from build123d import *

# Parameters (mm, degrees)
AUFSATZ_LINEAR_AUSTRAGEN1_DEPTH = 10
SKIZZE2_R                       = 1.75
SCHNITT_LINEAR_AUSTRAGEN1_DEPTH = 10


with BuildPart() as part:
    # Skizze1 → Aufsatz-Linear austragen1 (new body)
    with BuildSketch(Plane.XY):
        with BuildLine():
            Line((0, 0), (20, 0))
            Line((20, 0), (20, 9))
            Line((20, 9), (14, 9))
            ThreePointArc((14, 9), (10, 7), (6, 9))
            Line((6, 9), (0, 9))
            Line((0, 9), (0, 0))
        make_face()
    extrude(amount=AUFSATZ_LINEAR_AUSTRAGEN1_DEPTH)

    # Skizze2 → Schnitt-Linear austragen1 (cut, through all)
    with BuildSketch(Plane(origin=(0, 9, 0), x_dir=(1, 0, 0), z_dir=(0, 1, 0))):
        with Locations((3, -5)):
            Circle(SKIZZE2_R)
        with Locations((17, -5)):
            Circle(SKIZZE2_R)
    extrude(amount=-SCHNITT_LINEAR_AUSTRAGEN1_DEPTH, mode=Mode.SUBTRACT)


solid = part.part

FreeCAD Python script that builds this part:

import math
import FreeCAD as App
import Part
import Sketcher
from FreeCAD import Vector
Q = App.Units.Quantity

doc = App.newDocument("Part")
body = doc.addObject("PartDesign::Body", "Body")

sketch1 = doc.addObject("Sketcher::SketchObject", "Sketch")
body.addObject(sketch1)
sketch1.AttachmentSupport = (doc.XY_Plane, [""])
sketch1.MapMode = "FlatFace"
sketch1.addGeometry(Part.LineSegment(Vector(0, 0, 0), Vector(20, 0, 0)), False)
sketch1.addGeometry(Part.LineSegment(Vector(20, 0, 0), Vector(20, 9, 0)), False)
sketch1.addGeometry(Part.LineSegment(Vector(20, 9, 0), Vector(14, 9, 0)), False)
sketch1.addGeometry(Part.ArcOfCircle(Part.Circle(Vector(10, 12, 0), Vector(0, 0, 1), 5), math.radians(-143), math.radians(-37)), False)
sketch1.addGeometry(Part.LineSegment(Vector(6, 9, 0), Vector(0, 9, 0)), False)
sketch1.addGeometry(Part.LineSegment(Vector(0, 9, 0), Vector(0, 0, 0)), False)
sketch1.addConstraint(Sketcher.Constraint("Coincident", 0, 2, 1, 1))
sketch1.addConstraint(Sketcher.Constraint("Coincident", 1, 2, 2, 1))
sketch1.addConstraint(Sketcher.Constraint("Coincident", 2, 2, 3, 2))
sketch1.addConstraint(Sketcher.Constraint("Coincident", 3, 1, 4, 1))
sketch1.addConstraint(Sketcher.Constraint("Coincident", 4, 2, 5, 1))
sketch1.addConstraint(Sketcher.Constraint("Coincident", 5, 2, 0, 1))
sketch1.addConstraint(Sketcher.Constraint("Horizontal", 0))
sketch1.addConstraint(Sketcher.Constraint("Vertical", 1))
sketch1.addConstraint(Sketcher.Constraint("Horizontal", 2))
sketch1.addConstraint(Sketcher.Constraint("Horizontal", 4))
sketch1.addConstraint(Sketcher.Constraint("Vertical", 5))
sketch1.addConstraint(Sketcher.Constraint("Coincident", 5, 2, -1, 1))
sketch1.addConstraint(Sketcher.Constraint("Horizontal", 2, 2, 3, 1))
sketch1.addConstraint(Sketcher.Constraint("Equal", 2, 4))
sketch1.addConstraint(Sketcher.Constraint("Radius", 3, Q("5 mm")))
sketch1.addConstraint(Sketcher.Constraint("DistanceX", 0, 1, 0, 2, Q("20 mm")))
sketch1.addConstraint(Sketcher.Constraint("DistanceX", 2, 2, 2, 1, Q("6 mm")))
sketch1.addConstraint(Sketcher.Constraint("DistanceY", 1, 1, 1, 2, Q("9 mm")))
pad1 = doc.addObject("PartDesign::Pad", "Pad")
body.addObject(pad1)
pad1.Profile = sketch1
pad1.Length = 10

sketch2 = doc.addObject("Sketcher::SketchObject", "Sketch001")
body.addObject(sketch2)
sketch2.AttachmentSupport = (doc.XZ_Plane, [""])
sketch2.MapMode = "FlatFace"
sketch2.AttachmentOffset = App.Placement(Vector(0, 0, -9), App.Rotation())
sketch2.addGeometry(Part.Circle(Vector(3, 5, 0), Vector(0, 0, 1), 1.8), False)
sketch2.addGeometry(Part.Circle(Vector(17, 5, 0), Vector(0, 0, 1), 1.8), False)
sketch2.addConstraint(Sketcher.Constraint("Equal", 0, 1))
sketch2.addConstraint(Sketcher.Constraint("Horizontal", 0, 3, 1, 3))
sketch2.addConstraint(Sketcher.Constraint("Diameter", 0, Q("3.5 mm")))
sketch2.addConstraint(Sketcher.Constraint("DistanceX", -1, 1, 0, 3, Q("3 mm")))
sketch2.addConstraint(Sketcher.Constraint("DistanceY", -1, 1, 0, 3, Q("5 mm")))
sketch2.addConstraint(Sketcher.Constraint("DistanceX", -1, 1, 1, 3, Q("17 mm")))
pocket1 = doc.addObject("PartDesign::Pocket", "Pocket")
body.addObject(pocket1)
pocket1.Profile = sketch2
pocket1.Type = "ThroughAll"
pocket1.Reversed = True

doc.recompute()
